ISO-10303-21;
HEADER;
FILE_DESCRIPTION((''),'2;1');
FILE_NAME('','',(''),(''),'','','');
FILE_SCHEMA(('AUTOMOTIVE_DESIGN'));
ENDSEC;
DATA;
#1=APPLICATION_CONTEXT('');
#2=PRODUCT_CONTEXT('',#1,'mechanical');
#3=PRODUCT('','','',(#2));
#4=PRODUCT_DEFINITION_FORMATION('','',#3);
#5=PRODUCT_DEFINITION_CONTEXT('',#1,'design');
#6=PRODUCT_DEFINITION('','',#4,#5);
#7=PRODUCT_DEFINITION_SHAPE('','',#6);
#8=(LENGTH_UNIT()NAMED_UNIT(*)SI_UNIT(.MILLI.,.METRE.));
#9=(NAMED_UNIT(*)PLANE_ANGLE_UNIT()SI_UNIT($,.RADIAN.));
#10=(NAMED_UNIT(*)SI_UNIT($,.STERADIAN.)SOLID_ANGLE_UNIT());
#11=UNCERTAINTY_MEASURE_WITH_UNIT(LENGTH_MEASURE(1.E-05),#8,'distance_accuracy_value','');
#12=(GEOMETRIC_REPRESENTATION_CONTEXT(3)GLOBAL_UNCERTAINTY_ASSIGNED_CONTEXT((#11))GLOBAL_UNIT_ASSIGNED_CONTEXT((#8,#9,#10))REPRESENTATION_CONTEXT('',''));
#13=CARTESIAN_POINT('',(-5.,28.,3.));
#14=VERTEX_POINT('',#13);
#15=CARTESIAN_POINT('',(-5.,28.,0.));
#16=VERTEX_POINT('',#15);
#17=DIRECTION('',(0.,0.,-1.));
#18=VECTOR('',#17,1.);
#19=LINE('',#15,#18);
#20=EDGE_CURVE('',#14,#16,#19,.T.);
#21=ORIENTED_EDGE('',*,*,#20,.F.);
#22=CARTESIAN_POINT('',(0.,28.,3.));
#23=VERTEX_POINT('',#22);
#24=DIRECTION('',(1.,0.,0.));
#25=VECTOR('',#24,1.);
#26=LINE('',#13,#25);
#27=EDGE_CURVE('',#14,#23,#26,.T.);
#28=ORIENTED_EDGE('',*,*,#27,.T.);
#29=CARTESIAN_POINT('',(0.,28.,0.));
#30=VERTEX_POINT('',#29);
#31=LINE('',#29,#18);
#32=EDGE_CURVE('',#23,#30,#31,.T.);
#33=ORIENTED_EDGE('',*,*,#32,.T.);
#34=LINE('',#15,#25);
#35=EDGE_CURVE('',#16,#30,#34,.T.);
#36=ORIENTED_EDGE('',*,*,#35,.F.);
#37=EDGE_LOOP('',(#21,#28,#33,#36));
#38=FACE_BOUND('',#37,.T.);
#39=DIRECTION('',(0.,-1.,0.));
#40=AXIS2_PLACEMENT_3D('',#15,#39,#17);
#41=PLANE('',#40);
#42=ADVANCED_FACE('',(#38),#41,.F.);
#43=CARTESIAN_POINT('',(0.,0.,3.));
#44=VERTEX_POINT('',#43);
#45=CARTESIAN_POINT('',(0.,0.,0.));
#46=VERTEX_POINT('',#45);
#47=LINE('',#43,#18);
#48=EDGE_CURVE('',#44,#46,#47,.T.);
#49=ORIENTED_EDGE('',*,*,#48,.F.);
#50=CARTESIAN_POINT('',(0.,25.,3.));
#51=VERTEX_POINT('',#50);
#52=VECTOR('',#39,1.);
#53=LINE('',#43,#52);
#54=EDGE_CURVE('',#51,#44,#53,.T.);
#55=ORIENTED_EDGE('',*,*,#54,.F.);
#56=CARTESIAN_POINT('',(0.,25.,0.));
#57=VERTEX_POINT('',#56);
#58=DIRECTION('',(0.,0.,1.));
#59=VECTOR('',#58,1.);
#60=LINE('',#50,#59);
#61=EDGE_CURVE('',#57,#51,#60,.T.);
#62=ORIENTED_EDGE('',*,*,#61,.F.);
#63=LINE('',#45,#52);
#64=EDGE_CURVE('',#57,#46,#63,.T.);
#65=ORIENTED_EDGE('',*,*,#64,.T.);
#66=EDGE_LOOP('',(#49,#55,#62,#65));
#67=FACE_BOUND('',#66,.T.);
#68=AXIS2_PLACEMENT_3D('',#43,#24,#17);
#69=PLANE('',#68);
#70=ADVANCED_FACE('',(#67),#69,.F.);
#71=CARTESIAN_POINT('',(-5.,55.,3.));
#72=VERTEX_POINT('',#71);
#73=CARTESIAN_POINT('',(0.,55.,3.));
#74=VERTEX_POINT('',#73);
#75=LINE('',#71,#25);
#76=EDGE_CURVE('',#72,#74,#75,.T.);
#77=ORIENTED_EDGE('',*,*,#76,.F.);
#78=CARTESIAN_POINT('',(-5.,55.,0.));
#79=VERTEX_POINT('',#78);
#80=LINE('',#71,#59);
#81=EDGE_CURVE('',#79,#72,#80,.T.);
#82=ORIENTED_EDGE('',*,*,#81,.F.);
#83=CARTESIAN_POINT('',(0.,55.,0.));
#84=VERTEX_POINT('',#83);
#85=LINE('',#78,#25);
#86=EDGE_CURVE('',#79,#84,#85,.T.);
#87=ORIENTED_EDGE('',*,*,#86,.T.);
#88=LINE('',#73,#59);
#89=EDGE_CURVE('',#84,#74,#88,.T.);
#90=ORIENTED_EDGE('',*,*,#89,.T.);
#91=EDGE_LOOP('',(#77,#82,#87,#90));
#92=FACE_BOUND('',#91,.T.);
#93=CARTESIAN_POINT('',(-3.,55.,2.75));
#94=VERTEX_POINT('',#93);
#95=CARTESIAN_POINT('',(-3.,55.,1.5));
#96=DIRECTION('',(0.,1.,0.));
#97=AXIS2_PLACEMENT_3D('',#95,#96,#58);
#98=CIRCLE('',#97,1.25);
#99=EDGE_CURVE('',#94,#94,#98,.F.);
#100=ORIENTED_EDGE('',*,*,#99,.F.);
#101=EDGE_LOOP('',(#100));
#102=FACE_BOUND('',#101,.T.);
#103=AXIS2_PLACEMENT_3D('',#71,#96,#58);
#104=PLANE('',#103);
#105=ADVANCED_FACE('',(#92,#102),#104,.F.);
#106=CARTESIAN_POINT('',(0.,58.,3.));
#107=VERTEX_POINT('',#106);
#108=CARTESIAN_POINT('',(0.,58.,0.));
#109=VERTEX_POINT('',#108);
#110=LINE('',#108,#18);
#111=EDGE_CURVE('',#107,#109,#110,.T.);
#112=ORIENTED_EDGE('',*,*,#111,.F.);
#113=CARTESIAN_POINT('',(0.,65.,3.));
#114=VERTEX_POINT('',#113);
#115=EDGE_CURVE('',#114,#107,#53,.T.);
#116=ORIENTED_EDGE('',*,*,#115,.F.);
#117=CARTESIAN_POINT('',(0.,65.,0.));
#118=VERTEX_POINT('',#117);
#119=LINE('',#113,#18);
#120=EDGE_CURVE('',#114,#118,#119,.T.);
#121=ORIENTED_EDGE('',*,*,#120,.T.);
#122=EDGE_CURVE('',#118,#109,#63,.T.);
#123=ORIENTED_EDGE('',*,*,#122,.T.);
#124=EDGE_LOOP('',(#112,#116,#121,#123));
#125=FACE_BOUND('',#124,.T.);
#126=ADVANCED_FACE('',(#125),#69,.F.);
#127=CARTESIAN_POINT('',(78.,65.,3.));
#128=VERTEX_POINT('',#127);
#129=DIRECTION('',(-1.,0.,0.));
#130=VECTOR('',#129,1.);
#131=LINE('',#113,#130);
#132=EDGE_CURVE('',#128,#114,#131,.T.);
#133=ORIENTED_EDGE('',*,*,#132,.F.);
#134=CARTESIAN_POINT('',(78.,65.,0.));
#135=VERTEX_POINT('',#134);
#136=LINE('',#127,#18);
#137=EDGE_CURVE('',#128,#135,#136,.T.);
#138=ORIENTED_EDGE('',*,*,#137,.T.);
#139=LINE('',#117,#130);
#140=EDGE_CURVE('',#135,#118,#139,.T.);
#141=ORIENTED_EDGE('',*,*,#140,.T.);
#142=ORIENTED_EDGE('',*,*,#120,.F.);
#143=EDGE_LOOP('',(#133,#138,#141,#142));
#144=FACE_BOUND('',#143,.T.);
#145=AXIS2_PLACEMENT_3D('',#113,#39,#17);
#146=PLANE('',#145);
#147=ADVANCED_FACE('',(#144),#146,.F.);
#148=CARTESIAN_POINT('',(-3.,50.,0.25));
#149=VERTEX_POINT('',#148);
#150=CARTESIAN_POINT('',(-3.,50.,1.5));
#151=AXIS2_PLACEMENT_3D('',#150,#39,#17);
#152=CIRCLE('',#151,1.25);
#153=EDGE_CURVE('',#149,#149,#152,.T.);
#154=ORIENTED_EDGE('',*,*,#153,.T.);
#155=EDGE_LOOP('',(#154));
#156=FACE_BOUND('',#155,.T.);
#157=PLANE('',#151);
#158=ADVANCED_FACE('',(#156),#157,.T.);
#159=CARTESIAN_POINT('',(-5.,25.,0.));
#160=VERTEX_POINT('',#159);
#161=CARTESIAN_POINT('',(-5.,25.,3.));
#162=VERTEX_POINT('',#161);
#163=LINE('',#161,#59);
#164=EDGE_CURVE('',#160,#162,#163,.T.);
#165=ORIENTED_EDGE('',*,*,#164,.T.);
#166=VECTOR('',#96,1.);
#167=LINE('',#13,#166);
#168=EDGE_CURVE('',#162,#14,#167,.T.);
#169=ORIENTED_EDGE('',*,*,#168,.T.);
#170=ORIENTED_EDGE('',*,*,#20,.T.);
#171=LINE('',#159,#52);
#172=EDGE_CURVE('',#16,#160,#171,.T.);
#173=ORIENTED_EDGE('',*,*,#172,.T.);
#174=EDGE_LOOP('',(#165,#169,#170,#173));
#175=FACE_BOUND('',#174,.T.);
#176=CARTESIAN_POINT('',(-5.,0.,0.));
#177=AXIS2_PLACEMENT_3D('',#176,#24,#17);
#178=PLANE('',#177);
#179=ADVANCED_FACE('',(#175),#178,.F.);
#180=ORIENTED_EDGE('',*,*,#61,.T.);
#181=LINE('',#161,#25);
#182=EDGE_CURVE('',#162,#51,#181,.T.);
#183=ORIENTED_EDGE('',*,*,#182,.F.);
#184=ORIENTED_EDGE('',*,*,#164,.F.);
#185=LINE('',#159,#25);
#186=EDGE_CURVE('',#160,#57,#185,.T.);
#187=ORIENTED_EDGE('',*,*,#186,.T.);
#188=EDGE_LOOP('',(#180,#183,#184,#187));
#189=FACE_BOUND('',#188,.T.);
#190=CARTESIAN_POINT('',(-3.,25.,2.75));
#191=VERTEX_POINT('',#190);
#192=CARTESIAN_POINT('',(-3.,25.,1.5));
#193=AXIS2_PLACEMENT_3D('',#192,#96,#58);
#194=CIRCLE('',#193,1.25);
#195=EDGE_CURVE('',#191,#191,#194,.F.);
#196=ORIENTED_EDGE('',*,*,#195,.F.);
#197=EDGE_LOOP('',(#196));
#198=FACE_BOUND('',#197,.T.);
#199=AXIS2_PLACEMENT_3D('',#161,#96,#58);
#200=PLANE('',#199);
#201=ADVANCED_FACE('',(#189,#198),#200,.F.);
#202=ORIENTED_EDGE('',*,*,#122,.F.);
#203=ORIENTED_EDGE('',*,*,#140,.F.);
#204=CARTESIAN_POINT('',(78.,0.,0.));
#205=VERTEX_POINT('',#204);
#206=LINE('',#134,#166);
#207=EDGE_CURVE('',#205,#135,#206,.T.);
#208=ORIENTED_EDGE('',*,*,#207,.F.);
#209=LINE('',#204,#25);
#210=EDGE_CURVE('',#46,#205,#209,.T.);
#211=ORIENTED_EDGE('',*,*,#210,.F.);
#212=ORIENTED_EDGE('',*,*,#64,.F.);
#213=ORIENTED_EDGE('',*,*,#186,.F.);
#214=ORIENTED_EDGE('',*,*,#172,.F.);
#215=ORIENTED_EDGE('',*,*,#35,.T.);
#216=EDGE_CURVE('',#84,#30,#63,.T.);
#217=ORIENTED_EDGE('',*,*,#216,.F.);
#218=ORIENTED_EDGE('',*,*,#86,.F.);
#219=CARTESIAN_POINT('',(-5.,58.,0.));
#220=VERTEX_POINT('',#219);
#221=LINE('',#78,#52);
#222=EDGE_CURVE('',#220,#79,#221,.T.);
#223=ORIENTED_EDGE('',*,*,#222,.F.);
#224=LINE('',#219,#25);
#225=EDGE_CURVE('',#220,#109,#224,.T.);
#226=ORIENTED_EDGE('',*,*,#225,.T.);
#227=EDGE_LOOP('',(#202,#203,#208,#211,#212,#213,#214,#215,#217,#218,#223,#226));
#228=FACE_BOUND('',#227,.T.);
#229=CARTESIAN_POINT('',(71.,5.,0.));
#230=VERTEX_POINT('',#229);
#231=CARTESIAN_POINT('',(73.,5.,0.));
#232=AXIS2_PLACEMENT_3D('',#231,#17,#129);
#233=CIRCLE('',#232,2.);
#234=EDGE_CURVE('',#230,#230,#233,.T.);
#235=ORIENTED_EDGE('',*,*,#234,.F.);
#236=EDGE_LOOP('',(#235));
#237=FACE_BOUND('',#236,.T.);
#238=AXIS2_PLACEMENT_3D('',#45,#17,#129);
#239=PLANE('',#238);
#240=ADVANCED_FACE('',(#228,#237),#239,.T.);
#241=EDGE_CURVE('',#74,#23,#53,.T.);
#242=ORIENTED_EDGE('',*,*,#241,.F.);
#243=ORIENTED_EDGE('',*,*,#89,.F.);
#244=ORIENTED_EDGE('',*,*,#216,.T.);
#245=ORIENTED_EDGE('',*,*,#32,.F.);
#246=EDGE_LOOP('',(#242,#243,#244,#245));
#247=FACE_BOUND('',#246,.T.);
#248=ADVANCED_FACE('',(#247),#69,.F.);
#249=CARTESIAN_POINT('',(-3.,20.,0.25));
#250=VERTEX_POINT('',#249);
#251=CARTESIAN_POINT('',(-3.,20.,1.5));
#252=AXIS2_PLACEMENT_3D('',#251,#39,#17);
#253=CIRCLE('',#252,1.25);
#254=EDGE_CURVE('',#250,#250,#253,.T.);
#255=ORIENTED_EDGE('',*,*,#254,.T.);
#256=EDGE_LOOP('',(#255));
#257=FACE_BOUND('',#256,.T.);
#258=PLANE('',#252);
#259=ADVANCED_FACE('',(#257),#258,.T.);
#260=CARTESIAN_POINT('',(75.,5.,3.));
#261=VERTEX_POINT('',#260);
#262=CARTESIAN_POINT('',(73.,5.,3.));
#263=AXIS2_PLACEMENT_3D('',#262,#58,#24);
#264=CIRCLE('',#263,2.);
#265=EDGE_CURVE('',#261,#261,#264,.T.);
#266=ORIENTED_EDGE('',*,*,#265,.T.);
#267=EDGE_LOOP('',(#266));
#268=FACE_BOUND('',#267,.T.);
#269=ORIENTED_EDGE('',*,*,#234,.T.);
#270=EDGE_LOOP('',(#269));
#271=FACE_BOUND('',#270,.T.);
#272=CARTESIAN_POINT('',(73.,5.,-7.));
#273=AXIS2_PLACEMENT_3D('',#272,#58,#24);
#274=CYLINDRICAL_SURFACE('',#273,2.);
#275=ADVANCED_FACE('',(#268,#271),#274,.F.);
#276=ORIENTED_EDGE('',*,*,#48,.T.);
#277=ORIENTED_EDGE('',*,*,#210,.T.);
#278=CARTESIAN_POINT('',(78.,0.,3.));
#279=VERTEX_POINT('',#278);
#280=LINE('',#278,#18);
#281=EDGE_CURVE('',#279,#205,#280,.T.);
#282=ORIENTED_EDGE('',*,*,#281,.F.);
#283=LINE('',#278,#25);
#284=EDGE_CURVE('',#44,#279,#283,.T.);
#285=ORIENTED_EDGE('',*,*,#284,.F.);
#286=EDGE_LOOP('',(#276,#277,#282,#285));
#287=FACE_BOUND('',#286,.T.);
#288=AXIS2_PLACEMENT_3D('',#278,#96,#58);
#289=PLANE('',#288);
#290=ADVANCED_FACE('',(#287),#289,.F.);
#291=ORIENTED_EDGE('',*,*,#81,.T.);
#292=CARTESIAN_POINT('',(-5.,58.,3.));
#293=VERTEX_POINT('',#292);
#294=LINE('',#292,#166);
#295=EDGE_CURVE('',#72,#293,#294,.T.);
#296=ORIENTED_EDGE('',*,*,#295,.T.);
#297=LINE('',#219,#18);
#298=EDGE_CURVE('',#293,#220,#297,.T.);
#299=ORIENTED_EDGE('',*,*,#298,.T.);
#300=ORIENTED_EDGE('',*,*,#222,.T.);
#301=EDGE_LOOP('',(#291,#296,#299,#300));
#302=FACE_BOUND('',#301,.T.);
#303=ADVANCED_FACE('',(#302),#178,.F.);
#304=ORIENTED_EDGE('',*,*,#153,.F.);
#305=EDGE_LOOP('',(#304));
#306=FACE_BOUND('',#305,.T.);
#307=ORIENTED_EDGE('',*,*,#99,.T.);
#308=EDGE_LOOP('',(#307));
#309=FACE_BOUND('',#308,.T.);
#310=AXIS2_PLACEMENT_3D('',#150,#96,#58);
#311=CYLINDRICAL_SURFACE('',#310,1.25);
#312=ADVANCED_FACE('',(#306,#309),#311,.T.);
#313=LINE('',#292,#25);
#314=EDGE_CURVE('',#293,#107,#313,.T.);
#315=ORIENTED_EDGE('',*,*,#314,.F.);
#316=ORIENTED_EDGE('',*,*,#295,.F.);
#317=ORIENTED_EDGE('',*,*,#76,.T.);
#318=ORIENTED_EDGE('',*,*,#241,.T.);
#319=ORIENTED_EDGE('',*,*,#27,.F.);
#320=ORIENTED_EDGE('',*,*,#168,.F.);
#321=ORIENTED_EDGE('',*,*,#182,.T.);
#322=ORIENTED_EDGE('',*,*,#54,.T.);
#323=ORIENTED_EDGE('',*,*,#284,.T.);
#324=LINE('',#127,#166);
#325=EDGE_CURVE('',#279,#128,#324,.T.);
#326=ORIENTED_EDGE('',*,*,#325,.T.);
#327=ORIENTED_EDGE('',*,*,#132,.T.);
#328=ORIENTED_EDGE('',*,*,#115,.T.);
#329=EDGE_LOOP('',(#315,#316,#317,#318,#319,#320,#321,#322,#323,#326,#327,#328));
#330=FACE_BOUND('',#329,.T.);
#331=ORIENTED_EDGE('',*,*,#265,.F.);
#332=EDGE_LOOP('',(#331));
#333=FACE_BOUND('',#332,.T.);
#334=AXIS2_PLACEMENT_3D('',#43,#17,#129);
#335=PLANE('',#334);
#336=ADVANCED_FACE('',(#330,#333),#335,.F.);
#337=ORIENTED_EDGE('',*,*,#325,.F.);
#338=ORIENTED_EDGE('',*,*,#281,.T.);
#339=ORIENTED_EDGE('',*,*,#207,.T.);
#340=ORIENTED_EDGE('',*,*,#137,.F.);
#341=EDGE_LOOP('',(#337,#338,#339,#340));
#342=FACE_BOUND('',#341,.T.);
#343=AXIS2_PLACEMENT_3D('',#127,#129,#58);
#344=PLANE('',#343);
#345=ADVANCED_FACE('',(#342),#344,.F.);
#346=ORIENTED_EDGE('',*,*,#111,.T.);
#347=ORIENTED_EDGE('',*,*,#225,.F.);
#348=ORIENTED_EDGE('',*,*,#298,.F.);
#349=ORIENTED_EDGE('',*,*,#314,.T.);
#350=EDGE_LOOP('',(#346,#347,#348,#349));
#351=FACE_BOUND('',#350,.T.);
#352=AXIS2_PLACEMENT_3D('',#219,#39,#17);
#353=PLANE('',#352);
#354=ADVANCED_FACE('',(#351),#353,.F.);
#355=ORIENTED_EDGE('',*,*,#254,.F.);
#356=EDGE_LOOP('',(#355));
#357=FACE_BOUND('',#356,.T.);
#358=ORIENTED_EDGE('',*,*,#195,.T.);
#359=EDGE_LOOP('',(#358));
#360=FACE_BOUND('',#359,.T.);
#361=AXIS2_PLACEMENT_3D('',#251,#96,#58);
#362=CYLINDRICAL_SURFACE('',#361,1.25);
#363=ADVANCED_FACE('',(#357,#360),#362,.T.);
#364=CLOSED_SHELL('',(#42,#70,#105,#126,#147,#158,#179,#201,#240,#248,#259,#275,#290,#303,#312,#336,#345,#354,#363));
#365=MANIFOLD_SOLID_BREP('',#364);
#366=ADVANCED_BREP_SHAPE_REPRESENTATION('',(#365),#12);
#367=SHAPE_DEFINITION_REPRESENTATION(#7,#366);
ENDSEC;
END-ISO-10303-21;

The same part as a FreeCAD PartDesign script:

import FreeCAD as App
import Part
import Sketcher


def add_polygon(sketch, points):
    """Adds a closed chain of lines whose ends are joined by coincident constraints."""
    first, n = sketch.GeometryCount, len(points)
    for a, b in zip(points, points[1:] + points[:1]):
        sketch.addGeometry(Part.LineSegment(App.Vector(*a, 0), App.Vector(*b, 0)), False)
    for i in range(n):
        sketch.addConstraint(Sketcher.Constraint("Coincident", first + i, 2, first + (i + 1) % n, 1))

doc = App.newDocument("Part")
body = doc.addObject("PartDesign::Body", "Body")

# Sketch on XY plane
sketch1 = body.newObject("Sketcher::SketchObject", "Sketch")
sketch1.AttachmentSupport = (doc.getObject("XY_Plane"), [""])
sketch1.MapMode = "FlatFace"
add_polygon(sketch1, [(0, 65), (0, 0), (78, 0), (78, 65)])  # lines 0-3
sketch1.addConstraint([
    Sketcher.Constraint("Vertical", 0),
    Sketcher.Constraint("Horizontal", 1),
    Sketcher.Constraint("Vertical", 2),
    Sketcher.Constraint("Horizontal", 3),
    Sketcher.Constraint("Coincident", 0, 2, -1, 1),
    Sketcher.Constraint("DistanceX", 1, 1, 1, 2, 78.0),
    Sketcher.Constraint("DistanceY", 0, 2, 0, 1, 65.0),
])
pad1 = body.newObject("PartDesign::Pad", "Pad")
pad1.Profile = sketch1
pad1.Length = 3

# Sketch on YZ plane
sketch2 = body.newObject("Sketcher::SketchObject", "Sketch001")
sketch2.AttachmentSupport = (doc.getObject("YZ_Plane"), [""])
sketch2.MapMode = "FlatFace"
add_polygon(sketch2, [(58, 0), (55, 0), (55, 3), (58, 3)])  # lines 0-3
add_polygon(sketch2, [(28, 0), (25, 0), (25, 3), (28, 3)])  # lines 4-7
sketch2.addConstraint([
    Sketcher.Constraint("Horizontal", 0),
    Sketcher.Constraint("Vertical", 1),
    Sketcher.Constraint("Horizontal", 2),
    Sketcher.Constraint("Vertical", 3),
    Sketcher.Constraint("Horizontal", 4),
    Sketcher.Constraint("Vertical", 5),
    Sketcher.Constraint("Horizontal", 6),
    Sketcher.Constraint("Vertical", 7),
    Sketcher.Constraint("PointOnObject", 0, 2, -1),
    Sketcher.Constraint("PointOnObject", 4, 2, -1),
    Sketcher.Constraint("Horizontal", 2, 2, 5, 2),
    Sketcher.Constraint("Equal", 2, 4),
    Sketcher.Constraint("Equal", 6, 1),
    Sketcher.Constraint("DistanceX", 0, 2, 0, 1, 3.0),
    Sketcher.Constraint("DistanceX", -1, 1, 0, 2, 55.0),
    Sketcher.Constraint("DistanceX", -1, 1, 4, 2, 25.0),
])
pad2 = body.newObject("PartDesign::Pad", "Pad001")
pad2.Profile = sketch2
pad2.Length = 5
pad2.Reversed = True

# Sketch on XZ plane
sketch3 = body.newObject("Sketcher::SketchObject", "Sketch002")
sketch3.AttachmentSupport = (doc.getObject("XZ_Plane"), [""])
sketch3.MapMode = "FlatFace"
sketch3.AttachmentOffset = App.Placement(App.Vector(0, 0, -55), App.Rotation())
sketch3.addGeometry(Part.Circle(App.Vector(-3, 1.5, 0), App.Vector(0, 0, 1), 1.2), False)
sketch3.addConstraint([
    Sketcher.Constraint("Diameter", 0, 2.5),
    Sketcher.Constraint("DistanceX", 0, 3, -1, 1, 3.0),
    Sketcher.Constraint("DistanceY", -1, 1, 0, 3, 1.5),
])
pad3 = body.newObject("PartDesign::Pad", "Pad002")
pad3.Profile = sketch3
pad3.Length = 5

# Sketch on XZ plane
sketch4 = body.newObject("Sketcher::SketchObject", "Sketch003")
sketch4.AttachmentSupport = (doc.getObject("XZ_Plane"), [""])
sketch4.MapMode = "FlatFace"
sketch4.AttachmentOffset = App.Placement(App.Vector(0, 0, -25), App.Rotation())
sketch4.addGeometry(Part.Circle(App.Vector(-3, 1.5, 0), App.Vector(0, 0, 1), 1.2), False)
sketch4.addConstraint([
    Sketcher.Constraint("Diameter", 0, 2.5),
    Sketcher.Constraint("DistanceX", 0, 3, -1, 1, 3.0),
    Sketcher.Constraint("DistanceY", -1, 1, 0, 3, 1.5),
])
pad4 = body.newObject("PartDesign::Pad", "Pad003")
pad4.Profile = sketch4
pad4.Length = 5

# Sketch on XY plane
sketch5 = body.newObject("Sketcher::SketchObject", "Sketch004")
sketch5.AttachmentSupport = (doc.getObject("XY_Plane"), [""])
sketch5.MapMode = "FlatFace"
sketch5.AttachmentOffset = App.Placement(App.Vector(0, 0, 3), App.Rotation())
sketch5.addGeometry(Part.Circle(App.Vector(73, 5, 0), App.Vector(0, 0, 1), 2), False)
sketch5.addConstraint([
    Sketcher.Constraint("Diameter", 0, 4.0),
    Sketcher.Constraint("DistanceX", -1, 1, 0, 3, 73.0),
    Sketcher.Constraint("DistanceY", -1, 1, 0, 3, 5.0),
])
pocket1 = body.newObject("PartDesign::Pocket", "Pocket")
pocket1.Profile = sketch5
pocket1.Length = 10

doc.recompute()
